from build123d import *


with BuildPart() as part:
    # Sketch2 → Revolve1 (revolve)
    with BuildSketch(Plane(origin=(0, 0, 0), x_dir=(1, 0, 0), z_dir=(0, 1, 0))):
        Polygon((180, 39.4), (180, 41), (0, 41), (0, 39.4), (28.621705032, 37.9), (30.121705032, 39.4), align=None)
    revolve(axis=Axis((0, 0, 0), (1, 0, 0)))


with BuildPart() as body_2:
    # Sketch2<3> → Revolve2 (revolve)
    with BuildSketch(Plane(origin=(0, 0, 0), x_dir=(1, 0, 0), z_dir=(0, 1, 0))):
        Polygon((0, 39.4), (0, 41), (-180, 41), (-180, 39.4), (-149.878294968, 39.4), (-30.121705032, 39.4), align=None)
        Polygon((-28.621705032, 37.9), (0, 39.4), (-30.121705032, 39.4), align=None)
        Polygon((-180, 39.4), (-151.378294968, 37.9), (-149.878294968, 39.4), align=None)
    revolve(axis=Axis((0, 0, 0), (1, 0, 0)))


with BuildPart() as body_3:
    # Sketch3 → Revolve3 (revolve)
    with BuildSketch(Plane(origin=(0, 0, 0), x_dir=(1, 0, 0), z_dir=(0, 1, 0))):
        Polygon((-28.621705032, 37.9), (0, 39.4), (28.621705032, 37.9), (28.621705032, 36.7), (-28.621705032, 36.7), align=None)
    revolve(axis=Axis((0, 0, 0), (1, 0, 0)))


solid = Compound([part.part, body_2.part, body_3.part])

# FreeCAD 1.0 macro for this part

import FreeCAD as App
import Part
import Sketcher
Q = App.Units.Quantity

doc = App.newDocument("Part")
params = doc.addObject("Spreadsheet::Sheet", "Params")
for row, (alias, value) in enumerate([
    ("sketch1_width", "180 mm"),
    ("sketch1_height", "1.6 mm"),
    ("revolution_angle", "360 deg"),
    ("sketch2_width", "180 mm"),
    ("sketch2_height", "1.6 mm"),
    ("revolution2_angle", "360 deg"),
    ("sketch3_height", "1.2 mm"),
    ("revolution3_angle", "360 deg"),
], start=1):
    params.set(f"A{row}", alias)
    params.set(f"B{row}", "=" + value)
    params.setAlias(f"B{row}", alias)

body = doc.addObject("PartDesign::Body", "Body")

# Sketch on XZ plane
sketch1 = body.newObject("Sketcher::SketchObject", "Sketch")
sketch1.AttachmentSupport = (doc.getObject("XZ_Plane"), [""])
sketch1.MapMode = "FlatFace"
sketch1.addGeometry(Part.LineSegment(App.Vector(180, -39.4, 0), App.Vector(180, -41, 0)), False)
sketch1.addGeometry(Part.LineSegment(App.Vector(180, -41, 0), App.Vector(0, -41, 0)), False)
sketch1.addGeometry(Part.LineSegment(App.Vector(0, -41, 0), App.Vector(0, -39.4, 0)), False)
sketch1.addGeometry(Part.LineSegment(App.Vector(0, -39.4, 0), App.Vector(28.6, -37.9, 0)), False)
sketch1.addGeometry(Part.LineSegment(App.Vector(28.6, -37.9, 0), App.Vector(30.1, -39.4, 0)), False)
sketch1.addGeometry(Part.LineSegment(App.Vector(30.1, -39.4, 0), App.Vector(180, -39.4, 0)), False)
sketch1.addConstraint(Sketcher.Constraint("Coincident", 0, 2, 1, 1))
sketch1.addConstraint(Sketcher.Constraint("Coincident", 1, 2, 2, 1))
sketch1.addConstraint(Sketcher.Constraint("Coincident", 2, 2, 3, 1))
sketch1.addConstraint(Sketcher.Constraint("Coincident", 3, 2, 4, 1))
sketch1.addConstraint(Sketcher.Constraint("Coincident", 4, 2, 5, 1))
sketch1.addConstraint(Sketcher.Constraint("Coincident", 5, 2, 0, 1))
sketch1.addConstraint(Sketcher.Constraint("Vertical", 0))
sketch1.addConstraint(Sketcher.Constraint("Horizontal", 1))
sketch1.addConstraint(Sketcher.Constraint("Vertical", 2))
sketch1.addConstraint(Sketcher.Constraint("Horizontal", 5))
sketch1.addConstraint(Sketcher.Constraint("PointOnObject", 1, 2, -2))
sketch1.addConstraint(Sketcher.Constraint("Horizontal", 2, 2, 4, 2))
sketch1.addConstraint(Sketcher.Constraint("DistanceX", 1, 2, 1, 1, Q("180 mm")))
sketch1.addConstraint(Sketcher.Constraint("Angle", 3, Q("3 deg")))
sketch1.addConstraint(Sketcher.Constraint("Angle", 4, Q("-45 deg")))
sketch1.addConstraint(Sketcher.Constraint("DistanceY", 0, 2, 0, 1, Q("1.6 mm")))
sketch1.addConstraint(Sketcher.Constraint("DistanceY", 0, 2, -1, 1, Q("41 mm")))
sketch1.addConstraint(Sketcher.Constraint("DistanceY", 3, 2, -1, 1, Q("37.9 mm")))
sketch1.setExpression("Constraints[12]", "Params.sketch1_width")
sketch1.setExpression("Constraints[15]", "Params.sketch1_height")
revolution = body.newObject("PartDesign::Revolution", "Revolution")
revolution.Profile = sketch1
revolution.ReferenceAxis = (sketch1, ["H_Axis"])
revolution.setExpression("Angle", "Params.revolution_angle")
body2 = doc.addObject("PartDesign::Body", "Body001")

# Sketch on XZ plane
sketch2 = body2.newObject("Sketcher::SketchObject", "Sketch001")
sketch2.AttachmentSupport = (doc.getObject("XZ_Plane001"), [""])
sketch2.MapMode = "FlatFace"
sketch2.addGeometry(Part.LineSegment(App.Vector(0, -39.4, 0), App.Vector(0, -41, 0)), False)
sketch2.addGeometry(Part.LineSegment(App.Vector(0, -41, 0), App.Vector(-180, -41, 0)), False)
sketch2.addGeometry(Part.LineSegment(App.Vector(-180, -41, 0), App.Vector(-180, -39.4, 0)), False)
sketch2.addGeometry(Part.LineSegment(App.Vector(-180, -39.4, 0), App.Vector(-151.4, -37.9, 0)), False)
sketch2.addGeometry(Part.LineSegment(App.Vector(-151.4, -37.9, 0), App.Vector(-149.9, -39.4, 0)), False)
sketch2.addGeometry(Part.LineSegment(App.Vector(-149.9, -39.4, 0), App.Vector(-30.1, -39.4, 0)), False)
sketch2.addGeometry(Part.LineSegment(App.Vector(-30.1, -39.4, 0), App.Vector(-28.6, -37.9, 0)), False)
sketch2.addGeometry(Part.LineSegment(App.Vector(-28.6, -37.9, 0), App.Vector(0, -39.4, 0)), False)
sketch2.addConstraint(Sketcher.Constraint("Coincident", 0, 2, 1, 1))
sketch2.addConstraint(Sketcher.Constraint("Coincident", 1, 2, 2, 1))
sketch2.addConstraint(Sketcher.Constraint("Coincident", 2, 2, 3, 1))
sketch2.addConstraint(Sketcher.Constraint("Coincident", 3, 2, 4, 1))
sketch2.addConstraint(Sketcher.Constraint("Coincident", 4, 2, 5, 1))
sketch2.addConstraint(Sketcher.Constraint("Coincident", 5, 2, 6, 1))
sketch2.addConstraint(Sketcher.Constraint("Coincident", 6, 2, 7, 1))
sketch2.addConstraint(Sketcher.Constraint("Coincident", 7, 2, 0, 1))
sketch2.addConstraint(Sketcher.Constraint("Vertical", 0))
sketch2.addConstraint(Sketcher.Constraint("Horizontal", 1))
sketch2.addConstraint(Sketcher.Constraint("Vertical", 2))
sketch2.addConstraint(Sketcher.Constraint("Horizontal", 5))
sketch2.addConstraint(Sketcher.Constraint("PointOnObject", 0, 2, -2))
sketch2.addConstraint(Sketcher.Constraint("Perpendicular", 4, 6))
sketch2.addConstraint(Sketcher.Constraint("Horizontal", 2, 2, 4, 2))
sketch2.addConstraint(Sketcher.Constraint("Horizontal", 3, 2, 6, 2))
sketch2.addConstraint(Sketcher.Constraint("Horizontal", 5, 2, 7, 2))
sketch2.addConstraint(Sketcher.Constraint("Equal", 4, 6))
sketch2.addConstraint(Sketcher.Constraint("Equal", 3, 7))
sketch2.addConstraint(Sketcher.Constraint("DistanceX", 1, 2, 1, 1, Q("180 mm")))
sketch2.addConstraint(Sketcher.Constraint("Angle", 3, Q("3 deg")))
sketch2.addConstraint(Sketcher.Constraint("DistanceY", 0, 2, 0, 1, Q("1.6 mm")))
sketch2.addConstraint(Sketcher.Constraint("DistanceY", 0, 2, -1, 1, Q("41 mm")))
sketch2.addConstraint(Sketcher.Constraint("DistanceY", 3, 2, -1, 1, Q("37.9 mm")))
sketch2.setExpression("Constraints[19]", "Params.sketch2_width")
sketch2.setExpression("Constraints[21]", "Params.sketch2_height")
revolution2 = body2.newObject("PartDesign::Revolution", "Revolution001")
revolution2.Profile = sketch2
revolution2.ReferenceAxis = (sketch2, ["H_Axis"])
revolution2.setExpression("Angle", "Params.revolution2_angle")
body3 = doc.addObject("PartDesign::Body", "Body002")

# Sketch on XZ plane
sketch3 = body3.newObject("Sketcher::SketchObject", "Sketch002")
sketch3.AttachmentSupport = (doc.getObject("XZ_Plane002"), [""])
sketch3.MapMode = "FlatFace"
sketch3.addGeometry(Part.LineSegment(App.Vector(0, -39.4, 0), App.Vector(-28.6, -37.9, 0)), False)
sketch3.addGeometry(Part.LineSegment(App.Vector(-28.6, -37.9, 0), App.Vector(-28.6, -36.7, 0)), False)
sketch3.addGeometry(Part.LineSegment(App.Vector(-28.6, -36.7, 0), App.Vector(28.6, -36.7, 0)), False)
sketch3.addGeometry(Part.LineSegment(App.Vector(28.6, -36.7, 0), App.Vector(28.6, -37.9, 0)), False)
sketch3.addGeometry(Part.LineSegment(App.Vector(28.6, -37.9, 0), App.Vector(0, -39.4, 0)), False)
sketch3.addConstraint(Sketcher.Constraint("Coincident", 0, 2, 1, 1))
sketch3.addConstraint(Sketcher.Constraint("Coincident", 1, 2, 2, 1))
sketch3.addConstraint(Sketcher.Constraint("Coincident", 2, 2, 3, 1))
sketch3.addConstraint(Sketcher.Constraint("Coincident", 3, 2, 4, 1))
sketch3.addConstraint(Sketcher.Constraint("Coincident", 4, 2, 0, 1))
sketch3.addConstraint(Sketcher.Constraint("Vertical", 1))
sketch3.addConstraint(Sketcher.Constraint("Horizontal", 2))
sketch3.addConstraint(Sketcher.Constraint("Vertical", 3))
sketch3.addConstraint(Sketcher.Constraint("Symmetric", 0, 2, 3, 2, -2))
sketch3.addConstraint(Sketcher.Constraint("PointOnObject", 4, 2, -2))
sketch3.addConstraint(Sketcher.Constraint("Angle", 0, Q("177 deg")))
sketch3.addConstraint(Sketcher.Constraint("DistanceY", 1, 1, 1, 2, Q("1.2 mm")))
sketch3.addConstraint(Sketcher.Constraint("DistanceY", 0, 2, -1, 1, Q("37.9 mm")))
sketch3.addConstraint(Sketcher.Constraint("DistanceY", 4, 2, -1, 1, Q("39.4 mm")))
sketch3.setExpression("Constraints[11]", "Params.sketch3_height")
revolution3 = body3.newObject("PartDesign::Revolution", "Revolution002")
revolution3.Profile = sketch3
revolution3.ReferenceAxis = (sketch3, ["H_Axis"])
revolution3.setExpression("Angle", "Params.revolution3_angle")

doc.recompute()
